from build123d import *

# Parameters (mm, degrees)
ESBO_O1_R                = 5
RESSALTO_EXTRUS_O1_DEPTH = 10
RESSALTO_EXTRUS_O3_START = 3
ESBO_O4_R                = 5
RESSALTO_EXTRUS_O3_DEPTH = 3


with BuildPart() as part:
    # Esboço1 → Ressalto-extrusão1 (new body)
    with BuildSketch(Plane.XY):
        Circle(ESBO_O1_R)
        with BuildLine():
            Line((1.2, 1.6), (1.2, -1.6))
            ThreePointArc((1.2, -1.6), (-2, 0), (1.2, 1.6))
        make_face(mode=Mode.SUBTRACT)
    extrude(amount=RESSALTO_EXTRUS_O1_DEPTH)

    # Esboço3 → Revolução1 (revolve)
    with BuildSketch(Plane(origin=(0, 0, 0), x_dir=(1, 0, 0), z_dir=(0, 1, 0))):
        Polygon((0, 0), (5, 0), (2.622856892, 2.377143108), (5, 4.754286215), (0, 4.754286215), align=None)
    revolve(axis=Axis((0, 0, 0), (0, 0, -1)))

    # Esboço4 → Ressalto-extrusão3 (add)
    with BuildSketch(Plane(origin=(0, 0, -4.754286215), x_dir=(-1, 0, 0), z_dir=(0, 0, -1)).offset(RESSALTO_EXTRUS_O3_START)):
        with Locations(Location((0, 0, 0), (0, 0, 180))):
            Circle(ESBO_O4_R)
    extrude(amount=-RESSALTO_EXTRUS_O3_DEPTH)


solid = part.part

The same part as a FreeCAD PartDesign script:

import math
import FreeCAD as App
import Part
import Sketcher
from FreeCAD import Vector
Q = App.Units.Quantity

doc = App.newDocument("Part")
body = doc.addObject("PartDesign::Body", "Body")

# Sketch on XY plane
sketch1 = body.newObject("Sketcher::SketchObject", "Sketch")
sketch1.AttachmentSupport = (doc.getObject("XY_Plane"), [""])
sketch1.MapMode = "FlatFace"
sketch1.addGeometry(Part.Circle(Vector(0, 0, 0), Vector(0, 0, 1), 5), False)
sketch1.addGeometry(Part.ArcOfCircle(Part.Circle(Vector(0, 0, 0), Vector(0, 0, 1), 2), math.radians(53), math.radians(307)), False)
sketch1.addGeometry(Part.LineSegment(Vector(1.2, 1.6, 0), Vector(1.2, -1.6, 0)), False)
sketch1.addConstraint(Sketcher.Constraint("Coincident", 1, 1, 2, 1))
sketch1.addConstraint(Sketcher.Constraint("Coincident", 2, 2, 1, 2))
sketch1.addConstraint(Sketcher.Constraint("Vertical", 2))
sketch1.addConstraint(Sketcher.Constraint("Coincident", 0, 3, -1, 1))
sketch1.addConstraint(Sketcher.Constraint("Coincident", 1, 3, -1, 1))
sketch1.addConstraint(Sketcher.Constraint("Diameter", 0, Q("10 mm")))
sketch1.addConstraint(Sketcher.Constraint("Radius", 1, Q("2 mm")))
sketch1.addConstraint(Sketcher.Constraint("DistanceY", 2, 2, 2, 1, Q("3.2 mm")))
pad1 = body.newObject("PartDesign::Pad", "Pad")
pad1.Profile = sketch1
pad1.Length = 10

# Sketch on XZ plane
sketch2 = body.newObject("Sketcher::SketchObject", "Sketch001")
sketch2.AttachmentSupport = (doc.getObject("XZ_Plane"), [""])
sketch2.MapMode = "FlatFace"
sketch2.addGeometry(Part.LineSegment(Vector(0, 0, 0), Vector(5, 0, 0)), False)
sketch2.addGeometry(Part.LineSegment(Vector(5, 0, 0), Vector(2.6, -2.4, 0)), False)
sketch2.addGeometry(Part.LineSegment(Vector(2.6, -2.4, 0), Vector(5, -4.8, 0)), False)
sketch2.addGeometry(Part.LineSegment(Vector(5, -4.8, 0), Vector(0, -4.8, 0)), False)
sketch2.addGeometry(Part.LineSegment(Vector(0, -4.8, 0), Vector(0, 0, 0)), False)
sketch2.addConstraint(Sketcher.Constraint("Coincident", 0, 2, 1, 1))
sketch2.addConstraint(Sketcher.Constraint("Coincident", 1, 2, 2, 1))
sketch2.addConstraint(Sketcher.Constraint("Coincident", 2, 2, 3, 1))
sketch2.addConstraint(Sketcher.Constraint("Coincident", 3, 2, 4, 1))
sketch2.addConstraint(Sketcher.Constraint("Coincident", 4, 2, 0, 1))
sketch2.addConstraint(Sketcher.Constraint("Horizontal", 0))
sketch2.addConstraint(Sketcher.Constraint("Horizontal", 3))
sketch2.addConstraint(Sketcher.Constraint("Vertical", 4))
sketch2.addConstraint(Sketcher.Constraint("Coincident", 4, 2, -1, 1))
sketch2.addConstraint(Sketcher.Constraint("Perpendicular", 1, 2))
sketch2.addConstraint(Sketcher.Constraint("Vertical", 0, 2, 2, 2))
sketch2.addConstraint(Sketcher.Constraint("Equal", 1, 2))
sketch2.addConstraint(Sketcher.Constraint("DistanceX", 0, 1, 0, 2, Q("5 mm")))
sketch2.addConstraint(Sketcher.Constraint("Distance", 1, Q("3.361788 mm")))
revolution = body.newObject("PartDesign::Revolution", "Revolution")
revolution.Profile = sketch2
revolution.ReferenceAxis = (sketch2, ["V_Axis"])
revolution.Angle = 360

# Sketch on XY plane
sketch3 = body.newObject("Sketcher::SketchObject", "Sketch002")
sketch3.AttachmentSupport = (doc.getObject("XY_Plane"), [""])
sketch3.MapMode = "FlatFace"
sketch3.AttachmentOffset = App.Placement(Vector(0, 0, -7.754286), App.Rotation())
sketch3.addGeometry(Part.Circle(Vector(0, 0, 0), Vector(0, 0, 1), 5), False)
sketch3.addConstraint(Sketcher.Constraint("Coincident", 0, 3, -1, 1))
sketch3.addConstraint(Sketcher.Constraint("Diameter", 0, Q("10 mm")))
pad2 = body.newObject("PartDesign::Pad", "Pad001")
pad2.Profile = sketch3
pad2.Length = 3

doc.recompute()
